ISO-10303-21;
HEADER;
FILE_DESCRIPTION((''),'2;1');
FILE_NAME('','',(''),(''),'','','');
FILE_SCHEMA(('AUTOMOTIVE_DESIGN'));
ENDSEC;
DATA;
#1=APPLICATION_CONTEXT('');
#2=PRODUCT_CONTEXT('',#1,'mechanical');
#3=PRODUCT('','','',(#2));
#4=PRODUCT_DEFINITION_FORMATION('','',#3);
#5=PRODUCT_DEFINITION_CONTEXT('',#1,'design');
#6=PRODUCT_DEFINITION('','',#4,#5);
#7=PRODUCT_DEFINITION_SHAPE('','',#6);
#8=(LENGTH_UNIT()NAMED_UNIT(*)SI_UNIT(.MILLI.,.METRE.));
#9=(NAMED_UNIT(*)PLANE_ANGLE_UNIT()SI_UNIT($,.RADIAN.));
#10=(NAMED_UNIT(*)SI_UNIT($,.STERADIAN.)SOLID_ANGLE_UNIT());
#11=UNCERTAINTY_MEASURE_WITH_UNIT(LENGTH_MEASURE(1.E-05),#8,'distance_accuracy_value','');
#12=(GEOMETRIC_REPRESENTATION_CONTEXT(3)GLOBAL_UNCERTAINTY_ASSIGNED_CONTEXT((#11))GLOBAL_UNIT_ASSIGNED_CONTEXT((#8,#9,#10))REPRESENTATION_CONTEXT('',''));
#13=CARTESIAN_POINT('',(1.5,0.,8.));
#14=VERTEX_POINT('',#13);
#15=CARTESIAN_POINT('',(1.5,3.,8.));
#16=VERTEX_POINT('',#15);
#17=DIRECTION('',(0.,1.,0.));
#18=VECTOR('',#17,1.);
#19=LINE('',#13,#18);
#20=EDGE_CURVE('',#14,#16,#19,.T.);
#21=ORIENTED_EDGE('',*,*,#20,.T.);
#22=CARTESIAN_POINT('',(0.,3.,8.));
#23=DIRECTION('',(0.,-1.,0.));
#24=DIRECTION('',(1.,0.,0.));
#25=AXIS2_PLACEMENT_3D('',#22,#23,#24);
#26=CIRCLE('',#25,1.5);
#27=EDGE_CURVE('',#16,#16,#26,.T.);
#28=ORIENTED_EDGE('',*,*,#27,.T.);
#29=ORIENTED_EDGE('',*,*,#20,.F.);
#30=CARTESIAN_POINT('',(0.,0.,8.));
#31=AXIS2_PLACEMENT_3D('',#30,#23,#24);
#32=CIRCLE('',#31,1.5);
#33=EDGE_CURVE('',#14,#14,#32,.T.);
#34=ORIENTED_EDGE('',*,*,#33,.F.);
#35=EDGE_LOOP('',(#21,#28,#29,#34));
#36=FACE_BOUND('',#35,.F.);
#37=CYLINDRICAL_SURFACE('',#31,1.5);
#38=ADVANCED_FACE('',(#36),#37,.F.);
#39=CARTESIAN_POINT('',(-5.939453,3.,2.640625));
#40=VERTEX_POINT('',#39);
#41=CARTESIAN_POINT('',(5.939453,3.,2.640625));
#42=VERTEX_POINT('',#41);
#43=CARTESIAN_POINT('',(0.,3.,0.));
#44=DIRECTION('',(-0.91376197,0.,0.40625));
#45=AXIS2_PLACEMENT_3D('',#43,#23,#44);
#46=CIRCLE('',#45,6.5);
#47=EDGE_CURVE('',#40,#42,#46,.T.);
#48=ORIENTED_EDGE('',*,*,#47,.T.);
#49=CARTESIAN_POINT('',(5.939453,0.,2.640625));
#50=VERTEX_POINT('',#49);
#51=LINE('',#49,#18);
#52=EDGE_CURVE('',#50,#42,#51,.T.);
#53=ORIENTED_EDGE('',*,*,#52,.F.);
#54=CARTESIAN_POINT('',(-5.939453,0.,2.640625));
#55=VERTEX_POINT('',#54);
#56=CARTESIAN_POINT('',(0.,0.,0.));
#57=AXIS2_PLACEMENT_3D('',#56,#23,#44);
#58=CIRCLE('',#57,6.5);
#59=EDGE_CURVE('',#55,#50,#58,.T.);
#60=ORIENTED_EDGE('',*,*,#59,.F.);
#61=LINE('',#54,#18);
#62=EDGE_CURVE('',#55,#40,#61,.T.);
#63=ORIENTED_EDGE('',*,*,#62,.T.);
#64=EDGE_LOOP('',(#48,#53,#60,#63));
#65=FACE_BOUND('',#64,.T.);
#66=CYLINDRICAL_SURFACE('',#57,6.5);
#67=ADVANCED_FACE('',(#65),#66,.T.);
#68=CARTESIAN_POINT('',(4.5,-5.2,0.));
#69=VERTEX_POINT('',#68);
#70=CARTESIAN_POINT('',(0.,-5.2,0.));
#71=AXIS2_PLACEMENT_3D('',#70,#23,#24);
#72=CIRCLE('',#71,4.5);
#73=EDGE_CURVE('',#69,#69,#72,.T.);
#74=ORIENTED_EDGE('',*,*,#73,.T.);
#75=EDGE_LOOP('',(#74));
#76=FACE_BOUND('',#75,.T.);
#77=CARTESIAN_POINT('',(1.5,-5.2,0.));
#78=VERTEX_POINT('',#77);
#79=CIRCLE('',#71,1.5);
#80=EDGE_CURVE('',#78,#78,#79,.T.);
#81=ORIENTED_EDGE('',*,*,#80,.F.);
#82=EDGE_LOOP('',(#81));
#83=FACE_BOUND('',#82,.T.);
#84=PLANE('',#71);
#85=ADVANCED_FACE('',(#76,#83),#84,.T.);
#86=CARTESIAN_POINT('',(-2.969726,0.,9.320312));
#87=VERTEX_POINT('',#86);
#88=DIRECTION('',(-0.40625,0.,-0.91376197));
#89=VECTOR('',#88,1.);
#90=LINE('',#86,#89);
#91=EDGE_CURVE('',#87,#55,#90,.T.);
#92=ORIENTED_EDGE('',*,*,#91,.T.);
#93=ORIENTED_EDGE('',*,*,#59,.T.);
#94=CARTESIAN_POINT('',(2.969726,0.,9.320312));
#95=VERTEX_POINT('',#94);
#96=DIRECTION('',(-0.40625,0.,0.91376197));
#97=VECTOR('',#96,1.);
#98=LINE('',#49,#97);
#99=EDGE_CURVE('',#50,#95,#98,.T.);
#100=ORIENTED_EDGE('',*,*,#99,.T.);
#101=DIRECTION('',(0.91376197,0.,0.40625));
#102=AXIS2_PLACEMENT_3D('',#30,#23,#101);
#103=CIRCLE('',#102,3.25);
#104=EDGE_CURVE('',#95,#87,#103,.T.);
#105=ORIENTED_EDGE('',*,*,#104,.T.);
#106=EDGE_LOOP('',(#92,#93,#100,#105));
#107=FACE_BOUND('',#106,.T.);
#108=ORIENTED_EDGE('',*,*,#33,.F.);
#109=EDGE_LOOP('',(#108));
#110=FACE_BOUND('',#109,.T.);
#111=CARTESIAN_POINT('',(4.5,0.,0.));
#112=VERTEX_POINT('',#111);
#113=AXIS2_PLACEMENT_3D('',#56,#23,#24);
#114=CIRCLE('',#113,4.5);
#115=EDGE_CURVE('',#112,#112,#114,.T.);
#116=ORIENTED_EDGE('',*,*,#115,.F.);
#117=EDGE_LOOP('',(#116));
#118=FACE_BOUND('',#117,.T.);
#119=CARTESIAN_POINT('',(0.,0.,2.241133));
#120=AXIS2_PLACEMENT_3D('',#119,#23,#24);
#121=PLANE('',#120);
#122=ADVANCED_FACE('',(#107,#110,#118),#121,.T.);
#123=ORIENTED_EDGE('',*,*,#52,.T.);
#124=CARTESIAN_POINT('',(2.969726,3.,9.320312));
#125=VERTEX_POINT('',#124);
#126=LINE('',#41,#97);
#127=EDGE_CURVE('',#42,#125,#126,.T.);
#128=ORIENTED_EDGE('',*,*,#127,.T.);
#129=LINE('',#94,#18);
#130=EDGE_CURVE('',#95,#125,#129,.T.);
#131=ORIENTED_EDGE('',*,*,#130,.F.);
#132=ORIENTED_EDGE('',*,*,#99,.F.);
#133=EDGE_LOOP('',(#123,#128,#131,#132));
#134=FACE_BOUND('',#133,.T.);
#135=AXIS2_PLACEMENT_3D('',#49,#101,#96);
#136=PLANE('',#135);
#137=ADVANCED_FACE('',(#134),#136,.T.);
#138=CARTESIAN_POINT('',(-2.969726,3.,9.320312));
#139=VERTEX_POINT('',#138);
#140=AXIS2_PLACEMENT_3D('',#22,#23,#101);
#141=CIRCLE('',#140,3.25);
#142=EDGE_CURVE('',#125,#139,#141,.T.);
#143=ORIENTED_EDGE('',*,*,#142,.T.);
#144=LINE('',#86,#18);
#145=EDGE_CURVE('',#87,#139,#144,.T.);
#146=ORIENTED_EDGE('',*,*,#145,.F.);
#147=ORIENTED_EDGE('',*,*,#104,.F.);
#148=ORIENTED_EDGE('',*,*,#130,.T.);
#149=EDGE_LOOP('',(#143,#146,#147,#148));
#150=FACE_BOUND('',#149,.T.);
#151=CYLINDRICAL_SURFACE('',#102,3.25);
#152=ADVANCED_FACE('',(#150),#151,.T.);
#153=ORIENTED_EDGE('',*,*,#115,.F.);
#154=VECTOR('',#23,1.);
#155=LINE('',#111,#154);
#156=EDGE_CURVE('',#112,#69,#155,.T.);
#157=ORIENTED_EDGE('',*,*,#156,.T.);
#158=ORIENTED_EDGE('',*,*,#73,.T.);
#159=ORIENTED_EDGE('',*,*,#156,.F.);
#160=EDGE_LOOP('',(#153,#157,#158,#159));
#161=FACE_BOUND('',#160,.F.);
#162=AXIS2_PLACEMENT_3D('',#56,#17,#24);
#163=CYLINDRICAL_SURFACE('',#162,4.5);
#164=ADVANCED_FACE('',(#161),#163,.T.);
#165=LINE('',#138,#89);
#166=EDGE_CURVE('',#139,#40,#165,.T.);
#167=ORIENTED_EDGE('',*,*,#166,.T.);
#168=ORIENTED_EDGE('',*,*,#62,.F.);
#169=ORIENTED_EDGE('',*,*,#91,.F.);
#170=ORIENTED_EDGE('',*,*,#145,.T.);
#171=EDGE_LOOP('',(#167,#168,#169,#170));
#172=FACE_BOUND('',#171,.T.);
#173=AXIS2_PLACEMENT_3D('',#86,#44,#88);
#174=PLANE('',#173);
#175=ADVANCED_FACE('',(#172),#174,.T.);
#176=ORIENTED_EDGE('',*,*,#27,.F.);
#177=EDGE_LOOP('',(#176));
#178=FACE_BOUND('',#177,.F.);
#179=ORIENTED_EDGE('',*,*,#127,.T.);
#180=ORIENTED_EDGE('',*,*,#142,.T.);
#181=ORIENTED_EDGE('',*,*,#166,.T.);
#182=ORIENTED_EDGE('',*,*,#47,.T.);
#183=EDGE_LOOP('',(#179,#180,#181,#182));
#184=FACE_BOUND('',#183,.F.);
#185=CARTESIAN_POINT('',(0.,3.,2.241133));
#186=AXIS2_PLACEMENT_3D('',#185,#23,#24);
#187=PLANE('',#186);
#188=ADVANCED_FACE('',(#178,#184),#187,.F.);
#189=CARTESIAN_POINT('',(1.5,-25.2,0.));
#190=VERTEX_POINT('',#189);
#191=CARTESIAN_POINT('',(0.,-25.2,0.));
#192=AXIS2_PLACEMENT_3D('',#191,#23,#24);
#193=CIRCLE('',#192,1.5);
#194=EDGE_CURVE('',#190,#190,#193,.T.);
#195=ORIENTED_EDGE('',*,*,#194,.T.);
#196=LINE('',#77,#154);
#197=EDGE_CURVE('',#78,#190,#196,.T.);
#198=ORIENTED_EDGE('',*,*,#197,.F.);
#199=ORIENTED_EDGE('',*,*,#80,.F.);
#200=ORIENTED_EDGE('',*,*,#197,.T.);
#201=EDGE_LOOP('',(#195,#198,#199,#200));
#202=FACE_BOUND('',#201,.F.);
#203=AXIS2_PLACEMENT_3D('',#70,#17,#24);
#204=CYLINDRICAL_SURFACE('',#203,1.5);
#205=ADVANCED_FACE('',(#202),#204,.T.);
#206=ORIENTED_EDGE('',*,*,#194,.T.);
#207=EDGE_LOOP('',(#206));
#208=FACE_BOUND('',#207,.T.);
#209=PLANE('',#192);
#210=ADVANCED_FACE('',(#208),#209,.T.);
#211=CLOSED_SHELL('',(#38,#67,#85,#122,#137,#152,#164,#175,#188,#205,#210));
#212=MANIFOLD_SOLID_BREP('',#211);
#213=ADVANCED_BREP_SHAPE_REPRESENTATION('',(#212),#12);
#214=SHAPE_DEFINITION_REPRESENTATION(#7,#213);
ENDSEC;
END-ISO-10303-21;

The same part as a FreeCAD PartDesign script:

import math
import FreeCAD as App
import Part
import Sketcher
Q = App.Units.Quantity

doc = App.newDocument("Part")
params = doc.addObject("Spreadsheet::Sheet", "Params")
for row, (alias, value) in enumerate([
    ("sketch1_diameter", "3 mm"),
    ("sketch1_radius", "6.5 mm"),
    ("sketch1_radius2", "3.25 mm"),
    ("pad1_length", "3 mm"),
    ("sketch2_diameter", "9 mm"),
    ("pad2_length", "5.2 mm"),
    ("sketch3_diameter", "3 mm"),
    ("pad3_length", "20 mm"),
], start=1):
    params.set(f"A{row}", alias)
    params.set(f"B{row}", "=" + value)
    params.setAlias(f"B{row}", alias)

body = doc.addObject("PartDesign::Body", "Body")

# Sketch on XZ plane
sketch1 = body.newObject("Sketcher::SketchObject", "Sketch")
sketch1.AttachmentSupport = (doc.getObject("XZ_Plane"), [""])
sketch1.MapMode = "FlatFace"
sketch1.addGeometry([
    Part.LineSegment(App.Vector(5.9, 2.6, 0), App.Vector(3, 9.3, 0)),  # 0
    Part.ArcOfCircle(Part.Circle(App.Vector(0, 8, 0), App.Vector(0, 0, 1), 3.2), math.radians(24), math.radians(156)),  # 1
    Part.LineSegment(App.Vector(-3, 9.3, 0), App.Vector(-5.9, 2.6, 0)),  # 2
    Part.ArcOfCircle(Part.Circle(App.Vector(0, 0, 0), App.Vector(0, 0, 1), 6.5), math.radians(156), math.radians(384)),  # 3
    Part.Circle(App.Vector(0, 8, 0), App.Vector(0, 0, 1), 1.5),  # 4
], False)
sketch1.addConstraint([
    Sketcher.Constraint("Tangent", 0, 2, 1, 1),
    Sketcher.Constraint("Tangent", 1, 2, 2, 1),
    Sketcher.Constraint("Tangent", 2, 2, 3, 1),
    Sketcher.Constraint("Tangent", 3, 2, 0, 1),
    Sketcher.Constraint("Coincident", 3, 3, -1, 1),
    Sketcher.Constraint("Coincident", 4, 3, 1, 3),
    Sketcher.Constraint("PointOnObject", 1, 3, -2),
    Sketcher.Constraint("Diameter", 4, Q("3 mm")),
    Sketcher.Constraint("Radius", 3, Q("6.5 mm")),
    Sketcher.Constraint("Radius", 1, Q("3.25 mm")),
    Sketcher.Constraint("DistanceY", -1, 1, 1, 3, Q("8 mm")),
])
sketch1.setExpression("Constraints[7]", "Params.sketch1_diameter")
sketch1.setExpression("Constraints[8]", "Params.sketch1_radius")
sketch1.setExpression("Constraints[9]", "Params.sketch1_radius2")
pad1 = body.newObject("PartDesign::Pad", "Pad")
pad1.Profile = sketch1
pad1.setExpression("Length", "Params.pad1_length")
pad1.Reversed = True

# Sketch on XZ plane
sketch2 = body.newObject("Sketcher::SketchObject", "Sketch001")
sketch2.AttachmentSupport = (doc.getObject("XZ_Plane"), [""])
sketch2.MapMode = "FlatFace"
sketch2.addGeometry(Part.Circle(App.Vector(0, 0, 0), App.Vector(0, 0, 1), 4.5), False)
sketch2.addConstraint([
    Sketcher.Constraint("Coincident", 0, 3, -1, 1),
    Sketcher.Constraint("Diameter", 0, Q("9 mm")),
])
sketch2.setExpression("Constraints[1]", "Params.sketch2_diameter")
pad2 = body.newObject("PartDesign::Pad", "Pad001")
pad2.Profile = sketch2
pad2.setExpression("Length", "Params.pad2_length")

# Sketch on XZ plane
sketch3 = body.newObject("Sketcher::SketchObject", "Sketch002")
sketch3.AttachmentSupport = (doc.getObject("XZ_Plane"), [""])
sketch3.MapMode = "FlatFace"
sketch3.AttachmentOffset = App.Placement(App.Vector(0, 0, 5.2), App.Rotation())
sketch3.addGeometry(Part.Circle(App.Vector(0, 0, 0), App.Vector(0, 0, 1), 1.5), False)
sketch3.addConstraint([
    Sketcher.Constraint("Coincident", 0, 3, -1, 1),
    Sketcher.Constraint("Diameter", 0, Q("3 mm")),
])
sketch3.setExpression("Constraints[1]", "Params.sketch3_diameter")
pad3 = body.newObject("PartDesign::Pad", "Pad002")
pad3.Profile = sketch3
pad3.setExpression("Length", "Params.pad3_length")

doc.recompute()
